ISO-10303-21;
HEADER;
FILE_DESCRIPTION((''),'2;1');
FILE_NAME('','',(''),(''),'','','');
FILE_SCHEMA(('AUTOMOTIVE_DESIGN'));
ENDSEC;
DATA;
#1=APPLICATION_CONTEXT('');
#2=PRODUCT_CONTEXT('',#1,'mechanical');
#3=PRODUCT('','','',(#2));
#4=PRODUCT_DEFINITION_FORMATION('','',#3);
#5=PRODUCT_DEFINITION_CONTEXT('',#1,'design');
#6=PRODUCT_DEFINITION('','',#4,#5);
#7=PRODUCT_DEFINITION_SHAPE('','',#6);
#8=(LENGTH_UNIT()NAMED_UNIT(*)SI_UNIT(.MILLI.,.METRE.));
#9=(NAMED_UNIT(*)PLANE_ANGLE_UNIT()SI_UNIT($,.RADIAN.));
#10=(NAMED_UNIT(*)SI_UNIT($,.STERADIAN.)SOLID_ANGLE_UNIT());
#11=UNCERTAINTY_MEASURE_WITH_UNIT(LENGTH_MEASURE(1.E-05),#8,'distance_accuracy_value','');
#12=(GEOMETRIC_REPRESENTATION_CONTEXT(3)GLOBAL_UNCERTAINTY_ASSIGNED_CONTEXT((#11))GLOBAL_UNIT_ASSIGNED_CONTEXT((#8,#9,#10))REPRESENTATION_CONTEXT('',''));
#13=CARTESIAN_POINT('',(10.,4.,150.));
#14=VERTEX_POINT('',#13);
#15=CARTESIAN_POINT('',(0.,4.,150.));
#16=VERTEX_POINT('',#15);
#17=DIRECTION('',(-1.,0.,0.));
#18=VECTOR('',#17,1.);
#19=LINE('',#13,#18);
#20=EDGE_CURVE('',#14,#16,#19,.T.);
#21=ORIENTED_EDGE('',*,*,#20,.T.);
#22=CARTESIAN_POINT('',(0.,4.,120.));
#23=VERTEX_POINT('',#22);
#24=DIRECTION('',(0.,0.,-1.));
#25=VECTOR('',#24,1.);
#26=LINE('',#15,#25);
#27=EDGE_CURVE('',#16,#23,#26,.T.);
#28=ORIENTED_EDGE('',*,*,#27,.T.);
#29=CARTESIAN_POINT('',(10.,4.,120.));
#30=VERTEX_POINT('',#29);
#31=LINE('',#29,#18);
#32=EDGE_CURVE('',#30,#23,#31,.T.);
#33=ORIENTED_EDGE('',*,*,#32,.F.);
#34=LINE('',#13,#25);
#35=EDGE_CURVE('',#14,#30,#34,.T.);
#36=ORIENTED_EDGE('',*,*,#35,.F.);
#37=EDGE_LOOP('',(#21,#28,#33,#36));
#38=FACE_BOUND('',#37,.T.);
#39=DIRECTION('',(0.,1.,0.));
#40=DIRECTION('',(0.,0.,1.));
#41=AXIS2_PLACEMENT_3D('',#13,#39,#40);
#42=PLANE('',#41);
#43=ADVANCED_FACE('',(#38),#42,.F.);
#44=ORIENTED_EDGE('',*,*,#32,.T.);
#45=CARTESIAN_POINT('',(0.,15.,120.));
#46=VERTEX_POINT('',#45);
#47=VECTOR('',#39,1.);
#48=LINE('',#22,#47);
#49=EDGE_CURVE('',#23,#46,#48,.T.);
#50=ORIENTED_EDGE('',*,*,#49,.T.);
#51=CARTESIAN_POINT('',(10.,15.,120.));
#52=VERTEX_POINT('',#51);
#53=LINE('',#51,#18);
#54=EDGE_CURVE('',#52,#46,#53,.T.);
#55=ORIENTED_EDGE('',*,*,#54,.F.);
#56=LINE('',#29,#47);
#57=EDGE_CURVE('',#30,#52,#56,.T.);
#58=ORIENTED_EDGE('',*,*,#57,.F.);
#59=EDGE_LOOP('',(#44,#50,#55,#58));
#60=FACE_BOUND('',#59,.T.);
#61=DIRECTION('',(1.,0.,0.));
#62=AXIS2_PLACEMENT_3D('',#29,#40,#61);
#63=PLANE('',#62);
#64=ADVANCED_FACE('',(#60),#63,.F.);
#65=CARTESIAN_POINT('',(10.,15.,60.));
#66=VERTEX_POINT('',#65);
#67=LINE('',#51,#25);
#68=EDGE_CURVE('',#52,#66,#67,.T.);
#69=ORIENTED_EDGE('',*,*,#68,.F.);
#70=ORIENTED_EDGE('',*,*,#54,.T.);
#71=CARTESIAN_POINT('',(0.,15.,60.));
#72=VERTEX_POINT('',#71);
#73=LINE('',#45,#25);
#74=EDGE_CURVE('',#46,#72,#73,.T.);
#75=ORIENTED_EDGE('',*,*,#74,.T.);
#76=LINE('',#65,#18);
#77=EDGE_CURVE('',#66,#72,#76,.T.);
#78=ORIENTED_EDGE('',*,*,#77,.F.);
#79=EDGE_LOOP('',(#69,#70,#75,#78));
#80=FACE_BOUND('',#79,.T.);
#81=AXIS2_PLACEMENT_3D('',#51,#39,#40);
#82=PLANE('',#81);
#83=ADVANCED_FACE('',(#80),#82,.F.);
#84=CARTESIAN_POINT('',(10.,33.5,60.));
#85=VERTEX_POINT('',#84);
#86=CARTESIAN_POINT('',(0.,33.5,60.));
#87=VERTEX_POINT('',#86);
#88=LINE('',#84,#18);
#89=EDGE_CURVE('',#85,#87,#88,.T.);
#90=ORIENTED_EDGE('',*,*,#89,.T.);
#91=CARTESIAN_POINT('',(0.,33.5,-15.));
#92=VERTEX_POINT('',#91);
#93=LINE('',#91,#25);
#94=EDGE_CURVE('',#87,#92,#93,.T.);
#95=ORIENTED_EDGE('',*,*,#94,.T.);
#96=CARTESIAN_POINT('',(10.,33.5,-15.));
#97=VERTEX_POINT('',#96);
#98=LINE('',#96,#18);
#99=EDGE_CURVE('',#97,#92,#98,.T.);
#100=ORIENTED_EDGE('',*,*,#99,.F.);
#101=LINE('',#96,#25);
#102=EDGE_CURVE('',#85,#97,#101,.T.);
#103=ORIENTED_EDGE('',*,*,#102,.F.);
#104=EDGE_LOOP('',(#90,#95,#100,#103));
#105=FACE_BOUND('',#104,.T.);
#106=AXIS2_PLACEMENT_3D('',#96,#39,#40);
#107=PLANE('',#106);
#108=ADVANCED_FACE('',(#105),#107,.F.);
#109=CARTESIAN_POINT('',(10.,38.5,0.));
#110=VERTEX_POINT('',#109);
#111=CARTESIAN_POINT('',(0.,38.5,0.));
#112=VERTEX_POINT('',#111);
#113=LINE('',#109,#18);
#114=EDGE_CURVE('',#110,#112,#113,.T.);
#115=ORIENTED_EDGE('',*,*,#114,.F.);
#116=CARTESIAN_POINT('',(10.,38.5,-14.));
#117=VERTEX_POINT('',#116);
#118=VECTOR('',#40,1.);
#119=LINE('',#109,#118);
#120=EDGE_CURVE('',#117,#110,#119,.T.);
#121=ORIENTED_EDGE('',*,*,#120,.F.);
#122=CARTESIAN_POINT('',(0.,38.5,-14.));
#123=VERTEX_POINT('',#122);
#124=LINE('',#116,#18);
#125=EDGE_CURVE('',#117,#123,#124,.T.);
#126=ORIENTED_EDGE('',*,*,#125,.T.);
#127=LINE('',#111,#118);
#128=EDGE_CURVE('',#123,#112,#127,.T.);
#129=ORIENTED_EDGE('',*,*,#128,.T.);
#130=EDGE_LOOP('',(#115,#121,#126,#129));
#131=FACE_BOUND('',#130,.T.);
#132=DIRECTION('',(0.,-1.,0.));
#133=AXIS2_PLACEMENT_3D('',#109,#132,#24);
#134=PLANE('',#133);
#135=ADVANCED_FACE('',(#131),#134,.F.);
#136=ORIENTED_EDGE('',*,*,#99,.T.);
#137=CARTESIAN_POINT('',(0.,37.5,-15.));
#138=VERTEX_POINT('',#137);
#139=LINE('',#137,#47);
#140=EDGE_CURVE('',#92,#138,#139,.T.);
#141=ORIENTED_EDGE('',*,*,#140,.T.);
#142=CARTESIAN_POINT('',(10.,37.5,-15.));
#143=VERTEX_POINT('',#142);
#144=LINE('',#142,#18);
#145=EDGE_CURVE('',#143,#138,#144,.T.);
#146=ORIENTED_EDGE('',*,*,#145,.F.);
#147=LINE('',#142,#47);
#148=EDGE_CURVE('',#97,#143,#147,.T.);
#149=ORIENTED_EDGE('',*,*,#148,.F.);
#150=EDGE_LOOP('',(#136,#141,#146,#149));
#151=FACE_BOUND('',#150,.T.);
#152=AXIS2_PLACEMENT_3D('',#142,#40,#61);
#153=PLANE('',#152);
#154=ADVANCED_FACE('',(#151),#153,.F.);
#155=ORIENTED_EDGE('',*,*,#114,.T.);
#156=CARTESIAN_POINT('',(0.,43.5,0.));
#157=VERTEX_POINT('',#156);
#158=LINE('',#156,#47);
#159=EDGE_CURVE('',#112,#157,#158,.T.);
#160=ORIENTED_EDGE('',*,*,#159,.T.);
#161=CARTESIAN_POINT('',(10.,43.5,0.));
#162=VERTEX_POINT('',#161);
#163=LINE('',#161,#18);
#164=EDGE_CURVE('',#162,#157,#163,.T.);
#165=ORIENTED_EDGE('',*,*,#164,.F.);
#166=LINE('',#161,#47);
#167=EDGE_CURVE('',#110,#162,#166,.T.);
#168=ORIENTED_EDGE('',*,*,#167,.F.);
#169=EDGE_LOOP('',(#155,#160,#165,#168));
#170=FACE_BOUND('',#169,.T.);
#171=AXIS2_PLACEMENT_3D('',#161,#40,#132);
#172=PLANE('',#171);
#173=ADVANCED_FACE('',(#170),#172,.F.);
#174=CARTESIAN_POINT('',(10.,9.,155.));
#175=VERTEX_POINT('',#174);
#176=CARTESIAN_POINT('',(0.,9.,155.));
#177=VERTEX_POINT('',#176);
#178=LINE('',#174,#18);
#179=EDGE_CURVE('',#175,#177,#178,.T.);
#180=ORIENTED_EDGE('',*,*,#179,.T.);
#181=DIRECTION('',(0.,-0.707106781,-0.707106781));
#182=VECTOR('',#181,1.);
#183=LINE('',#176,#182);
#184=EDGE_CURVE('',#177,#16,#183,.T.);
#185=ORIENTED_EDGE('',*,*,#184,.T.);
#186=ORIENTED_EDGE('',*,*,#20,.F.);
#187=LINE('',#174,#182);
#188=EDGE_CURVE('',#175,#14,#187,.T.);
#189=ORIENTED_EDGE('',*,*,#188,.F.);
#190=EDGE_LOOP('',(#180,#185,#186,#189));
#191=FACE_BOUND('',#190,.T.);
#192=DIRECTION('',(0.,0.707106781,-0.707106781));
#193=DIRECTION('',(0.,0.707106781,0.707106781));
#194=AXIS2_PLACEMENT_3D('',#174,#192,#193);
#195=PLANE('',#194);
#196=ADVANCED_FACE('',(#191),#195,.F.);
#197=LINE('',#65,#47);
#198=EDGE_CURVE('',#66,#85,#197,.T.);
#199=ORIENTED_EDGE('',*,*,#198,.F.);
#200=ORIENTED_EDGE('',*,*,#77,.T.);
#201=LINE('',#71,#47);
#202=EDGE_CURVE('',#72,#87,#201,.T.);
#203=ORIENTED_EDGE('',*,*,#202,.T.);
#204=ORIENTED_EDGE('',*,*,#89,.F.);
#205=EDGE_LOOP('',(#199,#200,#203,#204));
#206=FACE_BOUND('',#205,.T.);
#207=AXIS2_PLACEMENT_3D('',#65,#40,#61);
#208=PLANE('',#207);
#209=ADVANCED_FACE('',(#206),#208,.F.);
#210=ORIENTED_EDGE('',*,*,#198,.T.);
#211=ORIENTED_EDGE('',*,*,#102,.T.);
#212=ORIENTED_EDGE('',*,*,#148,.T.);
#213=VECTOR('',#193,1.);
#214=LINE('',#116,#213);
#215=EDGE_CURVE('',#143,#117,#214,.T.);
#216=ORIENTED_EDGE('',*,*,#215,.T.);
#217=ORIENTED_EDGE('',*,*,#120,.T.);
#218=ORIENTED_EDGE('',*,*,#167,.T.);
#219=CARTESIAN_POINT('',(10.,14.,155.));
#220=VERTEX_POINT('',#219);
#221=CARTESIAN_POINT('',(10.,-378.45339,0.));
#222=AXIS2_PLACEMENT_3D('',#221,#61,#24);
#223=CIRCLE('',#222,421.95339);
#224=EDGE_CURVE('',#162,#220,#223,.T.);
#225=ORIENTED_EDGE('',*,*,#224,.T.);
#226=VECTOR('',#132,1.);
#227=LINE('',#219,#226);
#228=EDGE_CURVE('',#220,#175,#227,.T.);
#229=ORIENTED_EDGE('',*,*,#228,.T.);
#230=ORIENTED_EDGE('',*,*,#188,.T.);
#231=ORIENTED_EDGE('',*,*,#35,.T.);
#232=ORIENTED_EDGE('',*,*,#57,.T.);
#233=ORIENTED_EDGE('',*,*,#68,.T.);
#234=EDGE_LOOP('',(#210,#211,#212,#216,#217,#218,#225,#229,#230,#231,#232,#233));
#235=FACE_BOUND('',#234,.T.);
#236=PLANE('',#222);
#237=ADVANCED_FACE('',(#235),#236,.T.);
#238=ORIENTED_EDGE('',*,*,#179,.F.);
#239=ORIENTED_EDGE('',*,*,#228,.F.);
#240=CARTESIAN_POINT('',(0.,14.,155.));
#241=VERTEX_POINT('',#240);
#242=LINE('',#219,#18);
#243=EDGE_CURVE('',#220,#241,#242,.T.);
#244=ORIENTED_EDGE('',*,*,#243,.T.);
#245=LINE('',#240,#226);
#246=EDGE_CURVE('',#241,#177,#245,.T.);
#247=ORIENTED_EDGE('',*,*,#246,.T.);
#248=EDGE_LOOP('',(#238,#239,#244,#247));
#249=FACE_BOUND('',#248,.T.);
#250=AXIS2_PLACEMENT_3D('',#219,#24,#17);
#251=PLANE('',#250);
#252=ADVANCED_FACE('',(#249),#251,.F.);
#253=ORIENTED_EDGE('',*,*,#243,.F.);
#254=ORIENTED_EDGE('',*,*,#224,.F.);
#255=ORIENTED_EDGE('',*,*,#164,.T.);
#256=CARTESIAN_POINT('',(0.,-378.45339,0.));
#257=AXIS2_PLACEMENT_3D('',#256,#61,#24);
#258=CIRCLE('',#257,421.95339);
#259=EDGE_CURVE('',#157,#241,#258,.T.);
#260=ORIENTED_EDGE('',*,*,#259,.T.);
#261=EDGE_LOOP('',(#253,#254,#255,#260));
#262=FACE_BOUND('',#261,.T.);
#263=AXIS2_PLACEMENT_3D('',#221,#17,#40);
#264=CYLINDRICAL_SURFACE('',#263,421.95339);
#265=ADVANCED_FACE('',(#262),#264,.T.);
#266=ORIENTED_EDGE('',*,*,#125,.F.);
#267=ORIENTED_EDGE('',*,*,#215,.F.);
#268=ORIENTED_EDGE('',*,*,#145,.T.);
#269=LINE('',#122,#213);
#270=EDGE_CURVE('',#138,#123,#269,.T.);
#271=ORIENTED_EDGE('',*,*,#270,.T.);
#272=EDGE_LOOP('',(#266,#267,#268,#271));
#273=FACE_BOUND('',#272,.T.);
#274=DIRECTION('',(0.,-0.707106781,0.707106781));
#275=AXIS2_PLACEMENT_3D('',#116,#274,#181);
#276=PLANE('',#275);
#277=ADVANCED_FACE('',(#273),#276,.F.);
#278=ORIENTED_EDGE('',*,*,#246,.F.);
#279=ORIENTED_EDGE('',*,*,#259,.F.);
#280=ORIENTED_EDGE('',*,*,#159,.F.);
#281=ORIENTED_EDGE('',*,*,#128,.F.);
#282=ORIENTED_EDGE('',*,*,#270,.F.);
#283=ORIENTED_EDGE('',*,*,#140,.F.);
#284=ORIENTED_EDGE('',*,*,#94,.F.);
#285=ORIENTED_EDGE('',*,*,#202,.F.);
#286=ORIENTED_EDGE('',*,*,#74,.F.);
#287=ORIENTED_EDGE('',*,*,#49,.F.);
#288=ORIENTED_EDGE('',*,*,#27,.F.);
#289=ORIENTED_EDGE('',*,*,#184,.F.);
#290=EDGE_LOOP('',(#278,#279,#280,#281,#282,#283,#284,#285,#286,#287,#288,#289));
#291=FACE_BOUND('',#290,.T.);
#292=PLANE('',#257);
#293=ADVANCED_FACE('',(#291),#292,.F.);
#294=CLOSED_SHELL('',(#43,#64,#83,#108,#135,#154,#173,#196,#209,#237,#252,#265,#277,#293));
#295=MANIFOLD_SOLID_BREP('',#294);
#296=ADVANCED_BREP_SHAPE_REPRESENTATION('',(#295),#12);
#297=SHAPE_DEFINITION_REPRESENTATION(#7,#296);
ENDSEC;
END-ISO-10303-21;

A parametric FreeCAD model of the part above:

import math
import FreeCAD as App
import Part
import Sketcher
Q = App.Units.Quantity

doc = App.newDocument("Part")
body = doc.addObject("PartDesign::Body", "Body")

sketch1 = body.newObject("Sketcher::SketchObject", "Sketch")
sketch1.AttachmentSupport = (doc.getObject("YZ_Plane"), [""])
sketch1.MapMode = "FlatFace"
sketch1.addGeometry([
    Part.LineSegment(App.Vector(14, 155, 0), App.Vector(9, 155, 0)),
    Part.LineSegment(App.Vector(9, 155, 0), App.Vector(4, 150, 0)),
    Part.LineSegment(App.Vector(4, 150, 0), App.Vector(4, 120, 0)),
    Part.LineSegment(App.Vector(4, 120, 0), App.Vector(15, 120, 0)),
    Part.LineSegment(App.Vector(15, 120, 0), App.Vector(15, 60, 0)),
    Part.LineSegment(App.Vector(15, 60, 0), App.Vector(33.5, 60, 0)),
    Part.LineSegment(App.Vector(33.5, 60, 0), App.Vector(33.5, -15, 0)),
    Part.LineSegment(App.Vector(33.5, -15, 0), App.Vector(37.5, -15, 0)),
    Part.LineSegment(App.Vector(37.5, -15, 0), App.Vector(38.5, -14, 0)),
    Part.LineSegment(App.Vector(38.5, -14, 0), App.Vector(38.5, 0, 0)),
    Part.LineSegment(App.Vector(38.5, 0, 0), App.Vector(43.5, 0, 0)),
    Part.ArcOfCircle(Part.Circle(App.Vector(-378.5, 0, 0), App.Vector(0, 0, 1), 422), math.radians(0), math.radians(22)),
], False)
sketch1.addConstraint([
    Sketcher.Constraint("Coincident", 0, 2, 1, 1),
    Sketcher.Constraint("Coincident", 1, 2, 2, 1),
    Sketcher.Constraint("Coincident", 2, 2, 3, 1),
    Sketcher.Constraint("Coincident", 3, 2, 4, 1),
    Sketcher.Constraint("Coincident", 4, 2, 5, 1),
    Sketcher.Constraint("Coincident", 5, 2, 6, 1),
    Sketcher.Constraint("Coincident", 6, 2, 7, 1),
    Sketcher.Constraint("Coincident", 7, 2, 8, 1),
    Sketcher.Constraint("Coincident", 8, 2, 9, 1),
    Sketcher.Constraint("Coincident", 9, 2, 10, 1),
    Sketcher.Constraint("Coincident", 10, 2, 11, 1),
    Sketcher.Constraint("Coincident", 11, 2, 0, 1),
    Sketcher.Constraint("Horizontal", 0),
    Sketcher.Constraint("Vertical", 2),
    Sketcher.Constraint("Horizontal", 3),
    Sketcher.Constraint("Vertical", 4),
    Sketcher.Constraint("Horizontal", 5),
    Sketcher.Constraint("Vertical", 6),
    Sketcher.Constraint("Horizontal", 7),
    Sketcher.Constraint("Vertical", 9),
    Sketcher.Constraint("Horizontal", 10),
    Sketcher.Constraint("PointOnObject", 11, 3, -1),
    Sketcher.Constraint("PointOnObject", 9, 2, -1),
    Sketcher.Constraint("Parallel", 1, 8),
    Sketcher.Constraint("Equal", 0, 10),
    Sketcher.Constraint("DistanceX", 0, 2, 0, 1, Q("5 mm")),
    Sketcher.Constraint("DistanceX", 3, 1, 3, 2, Q("11 mm")),
    Sketcher.Constraint("DistanceX", 7, 1, 7, 2, Q("4 mm")),
    Sketcher.Constraint("DistanceY", 2, 2, 2, 1, Q("30 mm")),
    Sketcher.Constraint("DistanceY", 4, 2, 4, 1, Q("60 mm")),
    Sketcher.Constraint("DistanceY", 6, 2, 6, 1, Q("75 mm")),
    Sketcher.Constraint("DistanceY", 9, 1, 9, 2, Q("14 mm")),
    Sketcher.Constraint("Angle", 1, Q("-135 deg")),
    Sketcher.Constraint("DistanceX", 5, 1, 5, 2, Q("18.5 mm")),
    Sketcher.Constraint("DistanceX", -1, 1, 0, 2, Q("9 mm")),
    Sketcher.Constraint("DistanceY", -1, 1, 0, 2, Q("155 mm")),
    Sketcher.Constraint("DistanceX", -1, 1, 1, 2, Q("4 mm")),
])
pad1 = body.newObject("PartDesign::Pad", "Pad")
pad1.Profile = sketch1
pad1.Length = 10

doc.recompute()
